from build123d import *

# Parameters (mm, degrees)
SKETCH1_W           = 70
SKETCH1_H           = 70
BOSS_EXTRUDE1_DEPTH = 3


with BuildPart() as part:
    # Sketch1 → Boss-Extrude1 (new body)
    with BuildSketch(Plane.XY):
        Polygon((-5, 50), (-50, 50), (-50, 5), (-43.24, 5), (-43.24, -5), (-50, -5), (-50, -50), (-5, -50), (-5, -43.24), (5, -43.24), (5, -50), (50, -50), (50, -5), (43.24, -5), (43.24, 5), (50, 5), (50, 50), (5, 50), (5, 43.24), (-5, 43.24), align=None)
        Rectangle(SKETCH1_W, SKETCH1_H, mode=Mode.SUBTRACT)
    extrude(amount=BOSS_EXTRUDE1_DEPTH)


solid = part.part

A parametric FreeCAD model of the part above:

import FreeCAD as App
import Part
import Sketcher
from FreeCAD import Vector


def add_polygon(sketch, points):
    """Adds a closed chain of lines whose ends are joined by coincident constraints."""
    first, n = sketch.GeometryCount, len(points)
    for a, b in zip(points, points[1:] + points[:1]):
        sketch.addGeometry(Part.LineSegment(App.Vector(*a, 0), App.Vector(*b, 0)), False)
    for i in range(n):
        sketch.addConstraint(Sketcher.Constraint("Coincident", first + i, 2, first + (i + 1) % n, 1))

doc = App.newDocument("Part")
body = doc.addObject("PartDesign::Body", "Body")

sketch1 = body.newObject("Sketcher::SketchObject", "Sketch")
sketch1.AttachmentSupport = (doc.getObject("XY_Plane"), [""])
sketch1.MapMode = "FlatFace"
add_polygon(sketch1, [(-5, 50), (-50, 50), (-50, 5), (-43, 5), (-43, -5), (-50, -5), (-50, -50), (-5, -50), (-5, -43), (5, -43), (5, -50), (50, -50), (50, -5), (43, -5), (43, 5), (50, 5), (50, 50), (5, 50), (5, 43), (-5, 43)])
add_polygon(sketch1, [(35, -35), (-35, -35), (-35, 35), (35, 35)])
sketch1.addConstraint([
    Sketcher.Constraint("Horizontal", 0),
    Sketcher.Constraint("Vertical", 1),
    Sketcher.Constraint("Horizontal", 2),
    Sketcher.Constraint("Vertical", 3),
    Sketcher.Constraint("Horizontal", 4),
    Sketcher.Constraint("Vertical", 5),
    Sketcher.Constraint("Horizontal", 6),
    Sketcher.Constraint("Vertical", 7),
    Sketcher.Constraint("Horizontal", 8),
    Sketcher.Constraint("Vertical", 9),
    Sketcher.Constraint("Horizontal", 10),
    Sketcher.Constraint("Vertical", 11),
    Sketcher.Constraint("Horizontal", 12),
    Sketcher.Constraint("Vertical", 13),
    Sketcher.Constraint("Horizontal", 14),
    Sketcher.Constraint("Vertical", 15),
    Sketcher.Constraint("Horizontal", 16),
    Sketcher.Constraint("Vertical", 17),
    Sketcher.Constraint("Horizontal", 18),
    Sketcher.Constraint("Vertical", 19),
    Sketcher.Constraint("Horizontal", 20),
    Sketcher.Constraint("Vertical", 21),
    Sketcher.Constraint("Horizontal", 22),
    Sketcher.Constraint("Vertical", 23),
    Sketcher.Constraint("Symmetric", 0, 2, 10, 2, -1, 1),
    Sketcher.Constraint("Symmetric", 2, 2, 12, 2, -1, 1),
    Sketcher.Constraint("Symmetric", 4, 2, 14, 2, -1, 1),
    Sketcher.Constraint("Symmetric", 6, 2, 16, 2, -1, 1),
    Sketcher.Constraint("Symmetric", 8, 2, 18, 2, -1, 1),
    Sketcher.Constraint("Symmetric", 20, 2, 22, 2, -1, 1),
    Sketcher.Constraint("Symmetric", 6, 2, 9, 2, -2),
    Sketcher.Constraint("Symmetric", 4, 2, 11, 2, -2),
    Sketcher.Constraint("Equal", 16, 1),
    Sketcher.Constraint("Equal", 18, 3),
    Sketcher.Constraint("Equal", 14, 7),
    Sketcher.Constraint("Equal", 22, 21),
    Sketcher.Constraint("DistanceX", 0, 2, 0, 1, 45.0),
    Sketcher.Constraint("DistanceX", 8, 1, 8, 2, 10.0),
    Sketcher.Constraint("DistanceX", 20, 2, 20, 1, 70.0),
    Sketcher.Constraint("DistanceX", 2, 1, 2, 2, 6.76),
])
pad1 = body.newObject("PartDesign::Pad", "Pad")
pad1.Profile = sketch1
pad1.Length = 3

doc.recompute()
